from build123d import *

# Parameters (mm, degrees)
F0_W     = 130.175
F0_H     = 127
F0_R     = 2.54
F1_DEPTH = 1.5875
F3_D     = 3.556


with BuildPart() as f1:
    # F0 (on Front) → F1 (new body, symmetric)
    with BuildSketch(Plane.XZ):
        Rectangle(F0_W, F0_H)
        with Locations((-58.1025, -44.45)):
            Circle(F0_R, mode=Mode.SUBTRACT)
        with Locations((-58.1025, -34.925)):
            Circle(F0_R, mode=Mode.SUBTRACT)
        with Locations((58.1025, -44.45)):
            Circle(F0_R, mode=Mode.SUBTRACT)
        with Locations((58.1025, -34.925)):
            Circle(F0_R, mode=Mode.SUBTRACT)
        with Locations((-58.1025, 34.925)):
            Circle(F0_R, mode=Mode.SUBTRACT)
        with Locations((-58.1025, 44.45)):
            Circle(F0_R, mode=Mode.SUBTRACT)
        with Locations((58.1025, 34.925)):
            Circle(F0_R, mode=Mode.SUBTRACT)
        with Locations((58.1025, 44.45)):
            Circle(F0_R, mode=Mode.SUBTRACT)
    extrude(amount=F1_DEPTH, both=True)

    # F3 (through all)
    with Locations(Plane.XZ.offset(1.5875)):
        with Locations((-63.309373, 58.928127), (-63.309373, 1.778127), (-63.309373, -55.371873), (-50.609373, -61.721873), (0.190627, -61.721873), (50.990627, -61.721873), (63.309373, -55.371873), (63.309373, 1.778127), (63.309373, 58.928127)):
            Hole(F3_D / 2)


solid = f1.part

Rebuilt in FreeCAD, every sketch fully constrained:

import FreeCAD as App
import Part
import Sketcher
Q = App.Units.Quantity

doc = App.newDocument("Part")
body = doc.addObject("PartDesign::Body", "Body")

# Sketch on XZ plane
sketch1 = doc.addObject("Sketcher::SketchObject", "Sketch")
body.addObject(sketch1)
sketch1.AttachmentSupport = (doc.XZ_Plane, [""])
sketch1.MapMode = "FlatFace"
sketch1.addGeometry([
    Part.LineSegment(App.Vector(-65.0875, 63.5, 0), App.Vector(-65.0875, -63.5, 0)),  # 0
    Part.LineSegment(App.Vector(-65.0875, -63.5, 0), App.Vector(65.0875, -63.5, 0)),  # 1
    Part.LineSegment(App.Vector(65.0875, -63.5, 0), App.Vector(65.0875, 63.5, 0)),  # 2
    Part.LineSegment(App.Vector(65.0875, 63.5, 0), App.Vector(-65.0875, 63.5, 0)),  # 3
    Part.Circle(App.Vector(-58.1025, -44.45, 0), App.Vector(0, 0, 1), 2.54),  # 4
    Part.Circle(App.Vector(-58.1025, -34.925, 0), App.Vector(0, 0, 1), 2.54),  # 5
    Part.Circle(App.Vector(58.1025, -44.45, 0), App.Vector(0, 0, 1), 2.54),  # 6
    Part.Circle(App.Vector(58.1025, -34.925, 0), App.Vector(0, 0, 1), 2.54),  # 7
    Part.Circle(App.Vector(-58.1025, 34.925, 0), App.Vector(0, 0, 1), 2.54),  # 8
    Part.Circle(App.Vector(-58.1025, 44.45, 0), App.Vector(0, 0, 1), 2.54),  # 9
    Part.Circle(App.Vector(58.1025, 34.925, 0), App.Vector(0, 0, 1), 2.54),  # 10
    Part.Circle(App.Vector(58.1025, 44.45, 0), App.Vector(0, 0, 1), 2.54),  # 11
], False)
sketch1.addConstraint([
    Sketcher.Constraint("Coincident", 0, 2, 1, 1),
    Sketcher.Constraint("Coincident", 1, 2, 2, 1),
    Sketcher.Constraint("Coincident", 2, 2, 3, 1),
    Sketcher.Constraint("Coincident", 3, 2, 0, 1),
    Sketcher.Constraint("Vertical", 0),
    Sketcher.Constraint("Horizontal", 1),
    Sketcher.Constraint("Vertical", 2),
    Sketcher.Constraint("Horizontal", 3),
    Sketcher.Constraint("Equal", 4, 5),
    Sketcher.Constraint("Equal", 5, 6),
    Sketcher.Constraint("Equal", 6, 7),
    Sketcher.Constraint("Equal", 7, 8),
    Sketcher.Constraint("Equal", 8, 9),
    Sketcher.Constraint("Equal", 9, 10),
    Sketcher.Constraint("Equal", 10, 11),
    Sketcher.Constraint("Symmetric", 7, 3, 8, 3, -1, 1),
    Sketcher.Constraint("Symmetric", 6, 3, 9, 3, -1, 1),
    Sketcher.Constraint("Symmetric", 5, 3, 10, 3, -1, 1),
    Sketcher.Constraint("Symmetric", 4, 3, 11, 3, -1, 1),
    Sketcher.Constraint("Symmetric", 0, 2, 2, 2, -1, 1),
    Sketcher.Constraint("Symmetric", 4, 3, 6, 3, -2),
    Sketcher.Constraint("Symmetric", 5, 3, 7, 3, -2),
    Sketcher.Constraint("Vertical", 4, 3, 5, 3),
    Sketcher.Constraint("Diameter", 4, Q("0.2 in")),
    Sketcher.Constraint("DistanceY", 0, 2, 0, 1, Q("5 in")),
    Sketcher.Constraint("DistanceY", 4, 3, 9, 3, Q("3.5 in")),
    Sketcher.Constraint("DistanceX", 1, 1, 1, 2, Q("5.125 in")),
    Sketcher.Constraint("DistanceY", 5, 3, 8, 3, Q("2.75 in")),
    Sketcher.Constraint("DistanceX", 0, 2, 6, 3, Q("4.85 in")),
])
pad1 = doc.addObject("PartDesign::Pad", "Pad")
body.addObject(pad1)
pad1.Profile = sketch1
pad1.Length = Q("0.125 in")
pad1.Midplane = True

# Sketch on XZ plane
sketch2 = doc.addObject("Sketcher::SketchObject", "Sketch001")
body.addObject(sketch2)
sketch2.AttachmentSupport = (doc.XZ_Plane, [""])
sketch2.MapMode = "FlatFace"
sketch2.AttachmentOffset = App.Placement(App.Vector(0, 0, 0.0625 * 25.4), App.Rotation())
sketch2.addGeometry([
    Part.Circle(App.Vector(-63.309373, 58.928127, 0), App.Vector(0, 0, 1), 1.778),  # 0
    Part.Circle(App.Vector(-63.309373, 1.778127, 0), App.Vector(0, 0, 1), 1.778),  # 1
    Part.Circle(App.Vector(-63.309373, -55.371873, 0), App.Vector(0, 0, 1), 1.778),  # 2
    Part.Circle(App.Vector(-50.609373, -61.721873, 0), App.Vector(0, 0, 1), 1.778),  # 3
    Part.Circle(App.Vector(0.190627, -61.721873, 0), App.Vector(0, 0, 1), 1.778),  # 4
    Part.Circle(App.Vector(50.990627, -61.721873, 0), App.Vector(0, 0, 1), 1.778),  # 5
    Part.Circle(App.Vector(63.309373, -55.371873, 0), App.Vector(0, 0, 1), 1.778),  # 6
    Part.Circle(App.Vector(63.309373, 1.778127, 0), App.Vector(0, 0, 1), 1.778),  # 7
    Part.Circle(App.Vector(63.309373, 58.928127, 0), App.Vector(0, 0, 1), 1.778),  # 8
], False)
sketch2.addConstraint([
    Sketcher.Constraint("Equal", 0, 1),
    Sketcher.Constraint("Equal", 1, 2),
    Sketcher.Constraint("Equal", 2, 3),
    Sketcher.Constraint("Equal", 3, 4),
    Sketcher.Constraint("Equal", 4, 5),
    Sketcher.Constraint("Equal", 5, 6),
    Sketcher.Constraint("Equal", 6, 7),
    Sketcher.Constraint("Equal", 7, 8),
    Sketcher.Constraint("Symmetric", 2, 3, 6, 3, -2),
    Sketcher.Constraint("Symmetric", 1, 3, 7, 3, -2),
    Sketcher.Constraint("Symmetric", 0, 3, 8, 3, -2),
    Sketcher.Constraint("Horizontal", 3, 3, 4, 3),
    Sketcher.Constraint("Horizontal", 4, 3, 5, 3),
    Sketcher.Constraint("Vertical", 0, 3, 1, 3),
    Sketcher.Constraint("Vertical", 1, 3, 2, 3),
    Sketcher.Constraint("Diameter", 0, Q("0.14 in")),
    Sketcher.Constraint("DistanceX", 3, 3, 4, 3, Q("2 in")),
    Sketcher.Constraint("DistanceX", 4, 3, 5, 3, Q("2 in")),
    Sketcher.Constraint("DistanceY", 2, 3, 0, 3, Q("4.5 in")),
    Sketcher.Constraint("DistanceX", 2, 3, 3, 3, Q("0.5 in")),
    Sketcher.Constraint("DistanceY", 3, 3, 1, 3, Q("2.5 in")),
    Sketcher.Constraint("DistanceY", 1, 3, 0, 3, Q("2.25 in")),
    Sketcher.Constraint("DistanceX", 0, 3, -1, 1, Q("63.309373 mm")),
    Sketcher.Constraint("DistanceY", -1, 1, 0, 3, Q("58.928127 mm")),
])
doc.recompute()
hole = doc.addObject("PartDesign::Hole", "Hole")
body.addObject(hole)
hole.Profile = sketch2
hole.ThreadType = "None"
hole.Diameter = Q("0.14 in")
hole.DepthType = "ThroughAll"

doc.recompute()
